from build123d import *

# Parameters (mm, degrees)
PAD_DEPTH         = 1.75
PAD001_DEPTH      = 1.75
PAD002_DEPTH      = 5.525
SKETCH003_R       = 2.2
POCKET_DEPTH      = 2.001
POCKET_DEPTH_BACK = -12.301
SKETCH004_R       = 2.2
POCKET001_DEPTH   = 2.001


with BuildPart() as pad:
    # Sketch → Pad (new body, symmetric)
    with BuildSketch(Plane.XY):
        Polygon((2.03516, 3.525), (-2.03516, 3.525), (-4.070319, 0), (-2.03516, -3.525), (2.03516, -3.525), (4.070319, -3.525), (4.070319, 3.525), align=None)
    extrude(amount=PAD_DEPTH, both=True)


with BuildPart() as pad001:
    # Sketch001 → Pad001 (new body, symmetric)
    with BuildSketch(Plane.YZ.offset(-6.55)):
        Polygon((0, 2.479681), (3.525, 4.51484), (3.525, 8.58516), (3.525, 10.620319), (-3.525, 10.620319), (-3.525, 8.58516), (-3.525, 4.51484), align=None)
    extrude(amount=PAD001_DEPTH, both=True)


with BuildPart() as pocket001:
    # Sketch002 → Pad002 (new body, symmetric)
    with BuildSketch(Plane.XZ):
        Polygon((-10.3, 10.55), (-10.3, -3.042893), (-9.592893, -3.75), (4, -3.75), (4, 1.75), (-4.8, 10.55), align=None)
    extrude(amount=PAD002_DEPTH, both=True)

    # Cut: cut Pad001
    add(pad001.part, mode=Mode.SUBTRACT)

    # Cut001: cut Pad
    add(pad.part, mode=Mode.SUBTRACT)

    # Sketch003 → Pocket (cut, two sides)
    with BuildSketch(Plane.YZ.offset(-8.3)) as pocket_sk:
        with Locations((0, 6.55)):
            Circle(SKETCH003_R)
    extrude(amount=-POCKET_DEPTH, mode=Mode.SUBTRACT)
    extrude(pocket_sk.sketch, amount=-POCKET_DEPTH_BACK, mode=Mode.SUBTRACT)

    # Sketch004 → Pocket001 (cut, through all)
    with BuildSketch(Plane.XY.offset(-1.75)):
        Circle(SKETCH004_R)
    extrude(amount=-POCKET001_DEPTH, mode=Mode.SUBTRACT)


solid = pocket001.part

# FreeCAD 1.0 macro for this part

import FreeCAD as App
import Part
import Sketcher

V = App.Vector
Q = App.Units.Quantity


def add_polygon(sketch, points):
    """Adds a closed chain of lines whose ends are joined by coincident constraints."""
    first, n = sketch.GeometryCount, len(points)
    for a, b in zip(points, points[1:] + points[:1]):
        sketch.addGeometry(Part.LineSegment(App.Vector(*a, 0), App.Vector(*b, 0)), False)
    for i in range(n):
        sketch.addConstraint(Sketcher.Constraint("Coincident", first + i, 2, first + (i + 1) % n, 1))

doc = App.newDocument("Part")
body = doc.addObject("PartDesign::Body", "Body")

sketch1 = body.newObject("Sketcher::SketchObject", "Sketch")
sketch1.AttachmentSupport = (doc.getObject("XY_Plane"), [""])
sketch1.MapMode = "FlatFace"
add_polygon(sketch1, [(-2, 3.5), (-4.1, 0), (-2, -3.5), (4.1, -3.5), (4.1, 3.5)])
sketch1.addConstraint(Sketcher.Constraint("Horizontal", 2))
sketch1.addConstraint(Sketcher.Constraint("Vertical", 3))
sketch1.addConstraint(Sketcher.Constraint("Horizontal", 4))
sketch1.addConstraint(Sketcher.Constraint("Symmetric", 1, 2, 4, 2, -1))
sketch1.addConstraint(Sketcher.Constraint("PointOnObject", 0, 2, -1))
sketch1.addConstraint(Sketcher.Constraint("Angle", 0, Q("-119.999991 deg")))
sketch1.addConstraint(Sketcher.Constraint("DistanceY", 3, 1, 3, 2, 7.05))
sketch1.addConstraint(Sketcher.Constraint("DistanceX", 2, 1, 2, 2, 6.105479))
sketch1.addConstraint(Sketcher.Constraint("DistanceX", 0, 2, -1, 1, 4.070319))
pad1 = body.newObject("PartDesign::Pad", "Pad")
pad1.Profile = sketch1
pad1.Length = 3.5
pad1.Midplane = True
body2 = doc.addObject("PartDesign::Body", "Body001")

sketch2 = body2.newObject("Sketcher::SketchObject", "Sketch001")
sketch2.AttachmentSupport = (doc.getObject("YZ_Plane001"), [""])
sketch2.MapMode = "FlatFace"
sketch2.AttachmentOffset = App.Placement(V(0, 0, -6.55), App.Rotation())
add_polygon(sketch2, [(0, 2.5), (3.5, 4.5), (3.5, 10.6), (-3.5, 10.6), (-3.5, 4.5)])
sketch2.addConstraint(Sketcher.Constraint("Vertical", 1))
sketch2.addConstraint(Sketcher.Constraint("Horizontal", 2))
sketch2.addConstraint(Sketcher.Constraint("Vertical", 3))
sketch2.addConstraint(Sketcher.Constraint("Symmetric", 0, 2, 3, 2, -2))
sketch2.addConstraint(Sketcher.Constraint("PointOnObject", 4, 2, -2))
sketch2.addConstraint(Sketcher.Constraint("Angle", 0, Q("29.999991 deg")))
sketch2.addConstraint(Sketcher.Constraint("DistanceX", 2, 2, 2, 1, 7.05))
sketch2.addConstraint(Sketcher.Constraint("DistanceY", 1, 1, 1, 2, 6.105479))
sketch2.addConstraint(Sketcher.Constraint("DistanceY", -1, 1, 0, 2, 4.51484))
pad2 = body2.newObject("PartDesign::Pad", "Pad001")
pad2.Profile = sketch2
pad2.Length = 3.5
pad2.Midplane = True
body3 = doc.addObject("PartDesign::Body", "Body002")

sketch3 = body3.newObject("Sketcher::SketchObject", "Sketch002")
sketch3.AttachmentSupport = (doc.getObject("XZ_Plane002"), [""])
sketch3.MapMode = "FlatFace"
add_polygon(sketch3, [(-10.3, 10.6), (-10.3, -3), (-9.6, -3.8), (4, -3.8), (4, 1.8), (-4.8, 10.6)])
sketch3.addConstraint(Sketcher.Constraint("Vertical", 0))
sketch3.addConstraint(Sketcher.Constraint("Horizontal", 2))
sketch3.addConstraint(Sketcher.Constraint("Vertical", 3))
sketch3.addConstraint(Sketcher.Constraint("Horizontal", 5))
sketch3.addConstraint(Sketcher.Constraint("Parallel", 1, 4))
sketch3.addConstraint(Sketcher.Constraint("Equal", 2, 0))
sketch3.addConstraint(Sketcher.Constraint("Equal", 5, 3))
sketch3.addConstraint(Sketcher.Constraint("Distance", 1, 1.0))
sketch3.addConstraint(Sketcher.Constraint("DistanceX", 5, 2, 5, 1, 5.5))
sketch3.addConstraint(Sketcher.Constraint("DistanceX", -1, 1, 2, 2, 4.0))
sketch3.addConstraint(Sketcher.Constraint("DistanceX", 0, 2, -1, 1, 10.3))
sketch3.addConstraint(Sketcher.Constraint("DistanceY", 1, 2, -1, 1, 3.75))
pad3 = body3.newObject("PartDesign::Pad", "Pad002")
pad3.Profile = sketch3
pad3.Length = 11.05
pad3.Midplane = True
doc.recompute()

boolean = body3.newObject("PartDesign::Boolean", "Boolean")
boolean.Type = "Cut"
boolean.addObjects([body2])
doc.recompute()

boolean2 = body3.newObject("PartDesign::Boolean", "Boolean001")
boolean2.Type = "Cut"
boolean2.addObjects([body])

sketch4 = body3.newObject("Sketcher::SketchObject", "Sketch003")
sketch4.AttachmentSupport = (doc.getObject("YZ_Plane002"), [""])
sketch4.MapMode = "FlatFace"
sketch4.AttachmentOffset = App.Placement(V(0, 0, -8.3), App.Rotation())
sketch4.addGeometry(Part.Circle(V(0, 6.5, 0), V(0, 0, 1), 2.2), False)
sketch4.addConstraint(Sketcher.Constraint("PointOnObject", 0, 3, -2))
sketch4.addConstraint(Sketcher.Constraint("Diameter", 0, 4.4))
sketch4.addConstraint(Sketcher.Constraint("DistanceY", -1, 1, 0, 3, 6.55))
pocket1 = body3.newObject("PartDesign::Pocket", "Pocket")
pocket1.Profile = sketch4
pocket1.Type = "ThroughAll"
pocket1.Midplane = True

sketch5 = body3.newObject("Sketcher::SketchObject", "Sketch004")
sketch5.AttachmentSupport = (doc.getObject("XY_Plane002"), [""])
sketch5.MapMode = "FlatFace"
sketch5.AttachmentOffset = App.Placement(V(0, 0, -1.75), App.Rotation())
sketch5.addGeometry(Part.Circle(V(0, 0, 0), V(0, 0, 1), 2.2), False)
sketch5.addConstraint(Sketcher.Constraint("Coincident", 0, 3, -1, 1))
sketch5.addConstraint(Sketcher.Constraint("Diameter", 0, 4.4))
pocket2 = body3.newObject("PartDesign::Pocket", "Pocket001")
pocket2.Profile = sketch5
pocket2.Type = "ThroughAll"

doc.recompute()
